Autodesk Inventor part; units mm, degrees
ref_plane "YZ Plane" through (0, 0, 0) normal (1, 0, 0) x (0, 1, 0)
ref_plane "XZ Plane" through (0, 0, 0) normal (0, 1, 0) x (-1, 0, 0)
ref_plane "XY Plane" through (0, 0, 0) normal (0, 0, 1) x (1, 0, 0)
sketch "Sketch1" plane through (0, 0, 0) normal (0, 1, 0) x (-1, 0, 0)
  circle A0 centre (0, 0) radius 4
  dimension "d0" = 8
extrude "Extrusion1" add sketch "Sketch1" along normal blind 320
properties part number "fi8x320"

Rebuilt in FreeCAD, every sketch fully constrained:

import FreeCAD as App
import Part
import Sketcher

V = App.Vector
Q = App.Units.Quantity

doc = App.newDocument("Part")
body = doc.addObject("PartDesign::Body", "Body")

sketch1 = body.newObject("Sketcher::SketchObject", "Sketch")
sketch1.AttachmentSupport = (doc.getObject("XZ_Plane"), [""])
sketch1.MapMode = "FlatFace"
sketch1.addGeometry(Part.Circle(V(0, 0, 0), V(0, 0, 1), 4), False)
sketch1.addConstraint([
    Sketcher.Constraint("Coincident", 0, 3, -1, 1),
    Sketcher.Constraint("Diameter", 0, Q("8 mm")),
])
pad1 = body.newObject("PartDesign::Pad", "Pad")
pad1.Profile = sketch1
pad1.Length = 320
pad1.Reversed = True

doc.recompute()
